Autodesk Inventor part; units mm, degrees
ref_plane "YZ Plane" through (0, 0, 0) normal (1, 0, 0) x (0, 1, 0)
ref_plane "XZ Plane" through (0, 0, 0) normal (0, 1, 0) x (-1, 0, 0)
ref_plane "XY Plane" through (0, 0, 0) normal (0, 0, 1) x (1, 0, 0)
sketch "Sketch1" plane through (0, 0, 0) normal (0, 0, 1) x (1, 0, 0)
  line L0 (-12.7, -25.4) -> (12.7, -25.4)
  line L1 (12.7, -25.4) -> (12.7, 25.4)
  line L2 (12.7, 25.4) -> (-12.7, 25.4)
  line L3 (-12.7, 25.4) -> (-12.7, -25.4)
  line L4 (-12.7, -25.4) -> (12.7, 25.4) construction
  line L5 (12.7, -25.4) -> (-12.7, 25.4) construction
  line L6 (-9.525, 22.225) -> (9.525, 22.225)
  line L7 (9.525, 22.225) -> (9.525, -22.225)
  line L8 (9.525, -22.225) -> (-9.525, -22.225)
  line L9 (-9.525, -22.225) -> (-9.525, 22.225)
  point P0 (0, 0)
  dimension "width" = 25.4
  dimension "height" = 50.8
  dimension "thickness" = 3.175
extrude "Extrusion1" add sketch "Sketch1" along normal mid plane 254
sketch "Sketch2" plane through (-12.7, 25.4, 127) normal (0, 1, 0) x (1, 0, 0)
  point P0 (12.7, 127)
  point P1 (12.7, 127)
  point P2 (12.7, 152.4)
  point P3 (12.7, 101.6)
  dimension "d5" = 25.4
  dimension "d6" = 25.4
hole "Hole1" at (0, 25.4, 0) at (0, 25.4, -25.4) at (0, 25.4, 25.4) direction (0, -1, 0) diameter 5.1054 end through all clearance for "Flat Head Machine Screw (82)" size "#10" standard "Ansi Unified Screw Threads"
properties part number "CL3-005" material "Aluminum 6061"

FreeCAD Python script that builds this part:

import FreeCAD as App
import Part
import Sketcher
Q = App.Units.Quantity


def add_polygon(sketch, points):
    """Adds a closed chain of lines whose ends are joined by coincident constraints."""
    first, n = sketch.GeometryCount, len(points)
    for a, b in zip(points, points[1:] + points[:1]):
        sketch.addGeometry(Part.LineSegment(App.Vector(*a, 0), App.Vector(*b, 0)), False)
    for i in range(n):
        sketch.addConstraint(Sketcher.Constraint("Coincident", first + i, 2, first + (i + 1) % n, 1))

doc = App.newDocument("Part")
params = doc.addObject("Spreadsheet::Sheet", "Params")
for row, (alias, value) in enumerate([
    ("sketch1_width", "1 in"),
    ("sketch1_height", "2 in"),
    ("pad1_length", "10 in"),
    ("sketch2_diameter", "0.201 in"),
    ("hole_diameter", "0.201 in"),
], start=1):
    params.set(f"A{row}", alias)
    params.set(f"B{row}", "=" + value)
    params.setAlias(f"B{row}", alias)

body = doc.addObject("PartDesign::Body", "Body")

sketch1 = body.newObject("Sketcher::SketchObject", "Sketch")
sketch1.AttachmentSupport = (doc.getObject("XY_Plane"), [""])
sketch1.MapMode = "FlatFace"
add_polygon(sketch1, [(-12.7, 25.4), (-12.7, -25.4), (12.7, -25.4), (12.7, 25.4)])
add_polygon(sketch1, [(-9.525, -22.225), (-9.525, 22.225), (9.525, 22.225), (9.525, -22.225)])
sketch1.addConstraint([
    Sketcher.Constraint("Vertical", 0),
    Sketcher.Constraint("Horizontal", 1),
    Sketcher.Constraint("Vertical", 2),
    Sketcher.Constraint("Horizontal", 3),
    Sketcher.Constraint("Vertical", 4),
    Sketcher.Constraint("Horizontal", 5),
    Sketcher.Constraint("Vertical", 6),
    Sketcher.Constraint("Horizontal", 7),
    Sketcher.Constraint("Symmetric", 0, 2, 2, 2, -1, 1),
    Sketcher.Constraint("Symmetric", 4, 2, 6, 2, -1, 1),
    Sketcher.Constraint("DistanceX", 1, 1, 1, 2, Q("1 in")),
    Sketcher.Constraint("DistanceY", 0, 2, 0, 1, Q("2 in")),
    Sketcher.Constraint("DistanceX", 3, 2, 4, 2, Q("0.125 in")),
    Sketcher.Constraint("DistanceY", 4, 2, 3, 2, Q("0.125 in")),
])
sketch1.setExpression("Constraints[18]", "Params.sketch1_width")
sketch1.setExpression("Constraints[19]", "Params.sketch1_height")
pad1 = body.newObject("PartDesign::Pad", "Pad")
pad1.Profile = sketch1
pad1.setExpression("Length", "Params.pad1_length")
pad1.Midplane = True

sketch2 = body.newObject("Sketcher::SketchObject", "Sketch001")
sketch2.AttachmentSupport = (doc.getObject("XZ_Plane"), [""])
sketch2.MapMode = "FlatFace"
sketch2.AttachmentOffset = App.Placement(App.Vector(0, 0, -1 * 25.4), App.Rotation())
sketch2.addGeometry([
    Part.Circle(App.Vector(0, 0, 0), App.Vector(0, 0, 1), 2.5527),
    Part.Circle(App.Vector(0, -25.4, 0), App.Vector(0, 0, 1), 2.5527),
    Part.Circle(App.Vector(0, 25.4, 0), App.Vector(0, 0, 1), 2.5527),
], False)
sketch2.addConstraint([
    Sketcher.Constraint("Coincident", 0, 3, -1, 1),
    Sketcher.Constraint("Equal", 0, 1),
    Sketcher.Constraint("Equal", 1, 2),
    Sketcher.Constraint("Symmetric", 1, 3, 2, 3, -1, 1),
    Sketcher.Constraint("PointOnObject", 1, 3, -2),
    Sketcher.Constraint("Diameter", 0, Q("0.201 in")),
    Sketcher.Constraint("DistanceY", 1, 3, -1, 1, Q("1 in")),
])
sketch2.setExpression("Constraints[5]", "Params.sketch2_diameter")
doc.recompute()
hole = body.newObject("PartDesign::Hole", "Hole")
hole.Profile = sketch2
hole.ThreadType = "None"
hole.setExpression("Diameter", "Params.hole_diameter")
hole.DepthType = "ThroughAll"
hole.Reversed = True

doc.recompute()
